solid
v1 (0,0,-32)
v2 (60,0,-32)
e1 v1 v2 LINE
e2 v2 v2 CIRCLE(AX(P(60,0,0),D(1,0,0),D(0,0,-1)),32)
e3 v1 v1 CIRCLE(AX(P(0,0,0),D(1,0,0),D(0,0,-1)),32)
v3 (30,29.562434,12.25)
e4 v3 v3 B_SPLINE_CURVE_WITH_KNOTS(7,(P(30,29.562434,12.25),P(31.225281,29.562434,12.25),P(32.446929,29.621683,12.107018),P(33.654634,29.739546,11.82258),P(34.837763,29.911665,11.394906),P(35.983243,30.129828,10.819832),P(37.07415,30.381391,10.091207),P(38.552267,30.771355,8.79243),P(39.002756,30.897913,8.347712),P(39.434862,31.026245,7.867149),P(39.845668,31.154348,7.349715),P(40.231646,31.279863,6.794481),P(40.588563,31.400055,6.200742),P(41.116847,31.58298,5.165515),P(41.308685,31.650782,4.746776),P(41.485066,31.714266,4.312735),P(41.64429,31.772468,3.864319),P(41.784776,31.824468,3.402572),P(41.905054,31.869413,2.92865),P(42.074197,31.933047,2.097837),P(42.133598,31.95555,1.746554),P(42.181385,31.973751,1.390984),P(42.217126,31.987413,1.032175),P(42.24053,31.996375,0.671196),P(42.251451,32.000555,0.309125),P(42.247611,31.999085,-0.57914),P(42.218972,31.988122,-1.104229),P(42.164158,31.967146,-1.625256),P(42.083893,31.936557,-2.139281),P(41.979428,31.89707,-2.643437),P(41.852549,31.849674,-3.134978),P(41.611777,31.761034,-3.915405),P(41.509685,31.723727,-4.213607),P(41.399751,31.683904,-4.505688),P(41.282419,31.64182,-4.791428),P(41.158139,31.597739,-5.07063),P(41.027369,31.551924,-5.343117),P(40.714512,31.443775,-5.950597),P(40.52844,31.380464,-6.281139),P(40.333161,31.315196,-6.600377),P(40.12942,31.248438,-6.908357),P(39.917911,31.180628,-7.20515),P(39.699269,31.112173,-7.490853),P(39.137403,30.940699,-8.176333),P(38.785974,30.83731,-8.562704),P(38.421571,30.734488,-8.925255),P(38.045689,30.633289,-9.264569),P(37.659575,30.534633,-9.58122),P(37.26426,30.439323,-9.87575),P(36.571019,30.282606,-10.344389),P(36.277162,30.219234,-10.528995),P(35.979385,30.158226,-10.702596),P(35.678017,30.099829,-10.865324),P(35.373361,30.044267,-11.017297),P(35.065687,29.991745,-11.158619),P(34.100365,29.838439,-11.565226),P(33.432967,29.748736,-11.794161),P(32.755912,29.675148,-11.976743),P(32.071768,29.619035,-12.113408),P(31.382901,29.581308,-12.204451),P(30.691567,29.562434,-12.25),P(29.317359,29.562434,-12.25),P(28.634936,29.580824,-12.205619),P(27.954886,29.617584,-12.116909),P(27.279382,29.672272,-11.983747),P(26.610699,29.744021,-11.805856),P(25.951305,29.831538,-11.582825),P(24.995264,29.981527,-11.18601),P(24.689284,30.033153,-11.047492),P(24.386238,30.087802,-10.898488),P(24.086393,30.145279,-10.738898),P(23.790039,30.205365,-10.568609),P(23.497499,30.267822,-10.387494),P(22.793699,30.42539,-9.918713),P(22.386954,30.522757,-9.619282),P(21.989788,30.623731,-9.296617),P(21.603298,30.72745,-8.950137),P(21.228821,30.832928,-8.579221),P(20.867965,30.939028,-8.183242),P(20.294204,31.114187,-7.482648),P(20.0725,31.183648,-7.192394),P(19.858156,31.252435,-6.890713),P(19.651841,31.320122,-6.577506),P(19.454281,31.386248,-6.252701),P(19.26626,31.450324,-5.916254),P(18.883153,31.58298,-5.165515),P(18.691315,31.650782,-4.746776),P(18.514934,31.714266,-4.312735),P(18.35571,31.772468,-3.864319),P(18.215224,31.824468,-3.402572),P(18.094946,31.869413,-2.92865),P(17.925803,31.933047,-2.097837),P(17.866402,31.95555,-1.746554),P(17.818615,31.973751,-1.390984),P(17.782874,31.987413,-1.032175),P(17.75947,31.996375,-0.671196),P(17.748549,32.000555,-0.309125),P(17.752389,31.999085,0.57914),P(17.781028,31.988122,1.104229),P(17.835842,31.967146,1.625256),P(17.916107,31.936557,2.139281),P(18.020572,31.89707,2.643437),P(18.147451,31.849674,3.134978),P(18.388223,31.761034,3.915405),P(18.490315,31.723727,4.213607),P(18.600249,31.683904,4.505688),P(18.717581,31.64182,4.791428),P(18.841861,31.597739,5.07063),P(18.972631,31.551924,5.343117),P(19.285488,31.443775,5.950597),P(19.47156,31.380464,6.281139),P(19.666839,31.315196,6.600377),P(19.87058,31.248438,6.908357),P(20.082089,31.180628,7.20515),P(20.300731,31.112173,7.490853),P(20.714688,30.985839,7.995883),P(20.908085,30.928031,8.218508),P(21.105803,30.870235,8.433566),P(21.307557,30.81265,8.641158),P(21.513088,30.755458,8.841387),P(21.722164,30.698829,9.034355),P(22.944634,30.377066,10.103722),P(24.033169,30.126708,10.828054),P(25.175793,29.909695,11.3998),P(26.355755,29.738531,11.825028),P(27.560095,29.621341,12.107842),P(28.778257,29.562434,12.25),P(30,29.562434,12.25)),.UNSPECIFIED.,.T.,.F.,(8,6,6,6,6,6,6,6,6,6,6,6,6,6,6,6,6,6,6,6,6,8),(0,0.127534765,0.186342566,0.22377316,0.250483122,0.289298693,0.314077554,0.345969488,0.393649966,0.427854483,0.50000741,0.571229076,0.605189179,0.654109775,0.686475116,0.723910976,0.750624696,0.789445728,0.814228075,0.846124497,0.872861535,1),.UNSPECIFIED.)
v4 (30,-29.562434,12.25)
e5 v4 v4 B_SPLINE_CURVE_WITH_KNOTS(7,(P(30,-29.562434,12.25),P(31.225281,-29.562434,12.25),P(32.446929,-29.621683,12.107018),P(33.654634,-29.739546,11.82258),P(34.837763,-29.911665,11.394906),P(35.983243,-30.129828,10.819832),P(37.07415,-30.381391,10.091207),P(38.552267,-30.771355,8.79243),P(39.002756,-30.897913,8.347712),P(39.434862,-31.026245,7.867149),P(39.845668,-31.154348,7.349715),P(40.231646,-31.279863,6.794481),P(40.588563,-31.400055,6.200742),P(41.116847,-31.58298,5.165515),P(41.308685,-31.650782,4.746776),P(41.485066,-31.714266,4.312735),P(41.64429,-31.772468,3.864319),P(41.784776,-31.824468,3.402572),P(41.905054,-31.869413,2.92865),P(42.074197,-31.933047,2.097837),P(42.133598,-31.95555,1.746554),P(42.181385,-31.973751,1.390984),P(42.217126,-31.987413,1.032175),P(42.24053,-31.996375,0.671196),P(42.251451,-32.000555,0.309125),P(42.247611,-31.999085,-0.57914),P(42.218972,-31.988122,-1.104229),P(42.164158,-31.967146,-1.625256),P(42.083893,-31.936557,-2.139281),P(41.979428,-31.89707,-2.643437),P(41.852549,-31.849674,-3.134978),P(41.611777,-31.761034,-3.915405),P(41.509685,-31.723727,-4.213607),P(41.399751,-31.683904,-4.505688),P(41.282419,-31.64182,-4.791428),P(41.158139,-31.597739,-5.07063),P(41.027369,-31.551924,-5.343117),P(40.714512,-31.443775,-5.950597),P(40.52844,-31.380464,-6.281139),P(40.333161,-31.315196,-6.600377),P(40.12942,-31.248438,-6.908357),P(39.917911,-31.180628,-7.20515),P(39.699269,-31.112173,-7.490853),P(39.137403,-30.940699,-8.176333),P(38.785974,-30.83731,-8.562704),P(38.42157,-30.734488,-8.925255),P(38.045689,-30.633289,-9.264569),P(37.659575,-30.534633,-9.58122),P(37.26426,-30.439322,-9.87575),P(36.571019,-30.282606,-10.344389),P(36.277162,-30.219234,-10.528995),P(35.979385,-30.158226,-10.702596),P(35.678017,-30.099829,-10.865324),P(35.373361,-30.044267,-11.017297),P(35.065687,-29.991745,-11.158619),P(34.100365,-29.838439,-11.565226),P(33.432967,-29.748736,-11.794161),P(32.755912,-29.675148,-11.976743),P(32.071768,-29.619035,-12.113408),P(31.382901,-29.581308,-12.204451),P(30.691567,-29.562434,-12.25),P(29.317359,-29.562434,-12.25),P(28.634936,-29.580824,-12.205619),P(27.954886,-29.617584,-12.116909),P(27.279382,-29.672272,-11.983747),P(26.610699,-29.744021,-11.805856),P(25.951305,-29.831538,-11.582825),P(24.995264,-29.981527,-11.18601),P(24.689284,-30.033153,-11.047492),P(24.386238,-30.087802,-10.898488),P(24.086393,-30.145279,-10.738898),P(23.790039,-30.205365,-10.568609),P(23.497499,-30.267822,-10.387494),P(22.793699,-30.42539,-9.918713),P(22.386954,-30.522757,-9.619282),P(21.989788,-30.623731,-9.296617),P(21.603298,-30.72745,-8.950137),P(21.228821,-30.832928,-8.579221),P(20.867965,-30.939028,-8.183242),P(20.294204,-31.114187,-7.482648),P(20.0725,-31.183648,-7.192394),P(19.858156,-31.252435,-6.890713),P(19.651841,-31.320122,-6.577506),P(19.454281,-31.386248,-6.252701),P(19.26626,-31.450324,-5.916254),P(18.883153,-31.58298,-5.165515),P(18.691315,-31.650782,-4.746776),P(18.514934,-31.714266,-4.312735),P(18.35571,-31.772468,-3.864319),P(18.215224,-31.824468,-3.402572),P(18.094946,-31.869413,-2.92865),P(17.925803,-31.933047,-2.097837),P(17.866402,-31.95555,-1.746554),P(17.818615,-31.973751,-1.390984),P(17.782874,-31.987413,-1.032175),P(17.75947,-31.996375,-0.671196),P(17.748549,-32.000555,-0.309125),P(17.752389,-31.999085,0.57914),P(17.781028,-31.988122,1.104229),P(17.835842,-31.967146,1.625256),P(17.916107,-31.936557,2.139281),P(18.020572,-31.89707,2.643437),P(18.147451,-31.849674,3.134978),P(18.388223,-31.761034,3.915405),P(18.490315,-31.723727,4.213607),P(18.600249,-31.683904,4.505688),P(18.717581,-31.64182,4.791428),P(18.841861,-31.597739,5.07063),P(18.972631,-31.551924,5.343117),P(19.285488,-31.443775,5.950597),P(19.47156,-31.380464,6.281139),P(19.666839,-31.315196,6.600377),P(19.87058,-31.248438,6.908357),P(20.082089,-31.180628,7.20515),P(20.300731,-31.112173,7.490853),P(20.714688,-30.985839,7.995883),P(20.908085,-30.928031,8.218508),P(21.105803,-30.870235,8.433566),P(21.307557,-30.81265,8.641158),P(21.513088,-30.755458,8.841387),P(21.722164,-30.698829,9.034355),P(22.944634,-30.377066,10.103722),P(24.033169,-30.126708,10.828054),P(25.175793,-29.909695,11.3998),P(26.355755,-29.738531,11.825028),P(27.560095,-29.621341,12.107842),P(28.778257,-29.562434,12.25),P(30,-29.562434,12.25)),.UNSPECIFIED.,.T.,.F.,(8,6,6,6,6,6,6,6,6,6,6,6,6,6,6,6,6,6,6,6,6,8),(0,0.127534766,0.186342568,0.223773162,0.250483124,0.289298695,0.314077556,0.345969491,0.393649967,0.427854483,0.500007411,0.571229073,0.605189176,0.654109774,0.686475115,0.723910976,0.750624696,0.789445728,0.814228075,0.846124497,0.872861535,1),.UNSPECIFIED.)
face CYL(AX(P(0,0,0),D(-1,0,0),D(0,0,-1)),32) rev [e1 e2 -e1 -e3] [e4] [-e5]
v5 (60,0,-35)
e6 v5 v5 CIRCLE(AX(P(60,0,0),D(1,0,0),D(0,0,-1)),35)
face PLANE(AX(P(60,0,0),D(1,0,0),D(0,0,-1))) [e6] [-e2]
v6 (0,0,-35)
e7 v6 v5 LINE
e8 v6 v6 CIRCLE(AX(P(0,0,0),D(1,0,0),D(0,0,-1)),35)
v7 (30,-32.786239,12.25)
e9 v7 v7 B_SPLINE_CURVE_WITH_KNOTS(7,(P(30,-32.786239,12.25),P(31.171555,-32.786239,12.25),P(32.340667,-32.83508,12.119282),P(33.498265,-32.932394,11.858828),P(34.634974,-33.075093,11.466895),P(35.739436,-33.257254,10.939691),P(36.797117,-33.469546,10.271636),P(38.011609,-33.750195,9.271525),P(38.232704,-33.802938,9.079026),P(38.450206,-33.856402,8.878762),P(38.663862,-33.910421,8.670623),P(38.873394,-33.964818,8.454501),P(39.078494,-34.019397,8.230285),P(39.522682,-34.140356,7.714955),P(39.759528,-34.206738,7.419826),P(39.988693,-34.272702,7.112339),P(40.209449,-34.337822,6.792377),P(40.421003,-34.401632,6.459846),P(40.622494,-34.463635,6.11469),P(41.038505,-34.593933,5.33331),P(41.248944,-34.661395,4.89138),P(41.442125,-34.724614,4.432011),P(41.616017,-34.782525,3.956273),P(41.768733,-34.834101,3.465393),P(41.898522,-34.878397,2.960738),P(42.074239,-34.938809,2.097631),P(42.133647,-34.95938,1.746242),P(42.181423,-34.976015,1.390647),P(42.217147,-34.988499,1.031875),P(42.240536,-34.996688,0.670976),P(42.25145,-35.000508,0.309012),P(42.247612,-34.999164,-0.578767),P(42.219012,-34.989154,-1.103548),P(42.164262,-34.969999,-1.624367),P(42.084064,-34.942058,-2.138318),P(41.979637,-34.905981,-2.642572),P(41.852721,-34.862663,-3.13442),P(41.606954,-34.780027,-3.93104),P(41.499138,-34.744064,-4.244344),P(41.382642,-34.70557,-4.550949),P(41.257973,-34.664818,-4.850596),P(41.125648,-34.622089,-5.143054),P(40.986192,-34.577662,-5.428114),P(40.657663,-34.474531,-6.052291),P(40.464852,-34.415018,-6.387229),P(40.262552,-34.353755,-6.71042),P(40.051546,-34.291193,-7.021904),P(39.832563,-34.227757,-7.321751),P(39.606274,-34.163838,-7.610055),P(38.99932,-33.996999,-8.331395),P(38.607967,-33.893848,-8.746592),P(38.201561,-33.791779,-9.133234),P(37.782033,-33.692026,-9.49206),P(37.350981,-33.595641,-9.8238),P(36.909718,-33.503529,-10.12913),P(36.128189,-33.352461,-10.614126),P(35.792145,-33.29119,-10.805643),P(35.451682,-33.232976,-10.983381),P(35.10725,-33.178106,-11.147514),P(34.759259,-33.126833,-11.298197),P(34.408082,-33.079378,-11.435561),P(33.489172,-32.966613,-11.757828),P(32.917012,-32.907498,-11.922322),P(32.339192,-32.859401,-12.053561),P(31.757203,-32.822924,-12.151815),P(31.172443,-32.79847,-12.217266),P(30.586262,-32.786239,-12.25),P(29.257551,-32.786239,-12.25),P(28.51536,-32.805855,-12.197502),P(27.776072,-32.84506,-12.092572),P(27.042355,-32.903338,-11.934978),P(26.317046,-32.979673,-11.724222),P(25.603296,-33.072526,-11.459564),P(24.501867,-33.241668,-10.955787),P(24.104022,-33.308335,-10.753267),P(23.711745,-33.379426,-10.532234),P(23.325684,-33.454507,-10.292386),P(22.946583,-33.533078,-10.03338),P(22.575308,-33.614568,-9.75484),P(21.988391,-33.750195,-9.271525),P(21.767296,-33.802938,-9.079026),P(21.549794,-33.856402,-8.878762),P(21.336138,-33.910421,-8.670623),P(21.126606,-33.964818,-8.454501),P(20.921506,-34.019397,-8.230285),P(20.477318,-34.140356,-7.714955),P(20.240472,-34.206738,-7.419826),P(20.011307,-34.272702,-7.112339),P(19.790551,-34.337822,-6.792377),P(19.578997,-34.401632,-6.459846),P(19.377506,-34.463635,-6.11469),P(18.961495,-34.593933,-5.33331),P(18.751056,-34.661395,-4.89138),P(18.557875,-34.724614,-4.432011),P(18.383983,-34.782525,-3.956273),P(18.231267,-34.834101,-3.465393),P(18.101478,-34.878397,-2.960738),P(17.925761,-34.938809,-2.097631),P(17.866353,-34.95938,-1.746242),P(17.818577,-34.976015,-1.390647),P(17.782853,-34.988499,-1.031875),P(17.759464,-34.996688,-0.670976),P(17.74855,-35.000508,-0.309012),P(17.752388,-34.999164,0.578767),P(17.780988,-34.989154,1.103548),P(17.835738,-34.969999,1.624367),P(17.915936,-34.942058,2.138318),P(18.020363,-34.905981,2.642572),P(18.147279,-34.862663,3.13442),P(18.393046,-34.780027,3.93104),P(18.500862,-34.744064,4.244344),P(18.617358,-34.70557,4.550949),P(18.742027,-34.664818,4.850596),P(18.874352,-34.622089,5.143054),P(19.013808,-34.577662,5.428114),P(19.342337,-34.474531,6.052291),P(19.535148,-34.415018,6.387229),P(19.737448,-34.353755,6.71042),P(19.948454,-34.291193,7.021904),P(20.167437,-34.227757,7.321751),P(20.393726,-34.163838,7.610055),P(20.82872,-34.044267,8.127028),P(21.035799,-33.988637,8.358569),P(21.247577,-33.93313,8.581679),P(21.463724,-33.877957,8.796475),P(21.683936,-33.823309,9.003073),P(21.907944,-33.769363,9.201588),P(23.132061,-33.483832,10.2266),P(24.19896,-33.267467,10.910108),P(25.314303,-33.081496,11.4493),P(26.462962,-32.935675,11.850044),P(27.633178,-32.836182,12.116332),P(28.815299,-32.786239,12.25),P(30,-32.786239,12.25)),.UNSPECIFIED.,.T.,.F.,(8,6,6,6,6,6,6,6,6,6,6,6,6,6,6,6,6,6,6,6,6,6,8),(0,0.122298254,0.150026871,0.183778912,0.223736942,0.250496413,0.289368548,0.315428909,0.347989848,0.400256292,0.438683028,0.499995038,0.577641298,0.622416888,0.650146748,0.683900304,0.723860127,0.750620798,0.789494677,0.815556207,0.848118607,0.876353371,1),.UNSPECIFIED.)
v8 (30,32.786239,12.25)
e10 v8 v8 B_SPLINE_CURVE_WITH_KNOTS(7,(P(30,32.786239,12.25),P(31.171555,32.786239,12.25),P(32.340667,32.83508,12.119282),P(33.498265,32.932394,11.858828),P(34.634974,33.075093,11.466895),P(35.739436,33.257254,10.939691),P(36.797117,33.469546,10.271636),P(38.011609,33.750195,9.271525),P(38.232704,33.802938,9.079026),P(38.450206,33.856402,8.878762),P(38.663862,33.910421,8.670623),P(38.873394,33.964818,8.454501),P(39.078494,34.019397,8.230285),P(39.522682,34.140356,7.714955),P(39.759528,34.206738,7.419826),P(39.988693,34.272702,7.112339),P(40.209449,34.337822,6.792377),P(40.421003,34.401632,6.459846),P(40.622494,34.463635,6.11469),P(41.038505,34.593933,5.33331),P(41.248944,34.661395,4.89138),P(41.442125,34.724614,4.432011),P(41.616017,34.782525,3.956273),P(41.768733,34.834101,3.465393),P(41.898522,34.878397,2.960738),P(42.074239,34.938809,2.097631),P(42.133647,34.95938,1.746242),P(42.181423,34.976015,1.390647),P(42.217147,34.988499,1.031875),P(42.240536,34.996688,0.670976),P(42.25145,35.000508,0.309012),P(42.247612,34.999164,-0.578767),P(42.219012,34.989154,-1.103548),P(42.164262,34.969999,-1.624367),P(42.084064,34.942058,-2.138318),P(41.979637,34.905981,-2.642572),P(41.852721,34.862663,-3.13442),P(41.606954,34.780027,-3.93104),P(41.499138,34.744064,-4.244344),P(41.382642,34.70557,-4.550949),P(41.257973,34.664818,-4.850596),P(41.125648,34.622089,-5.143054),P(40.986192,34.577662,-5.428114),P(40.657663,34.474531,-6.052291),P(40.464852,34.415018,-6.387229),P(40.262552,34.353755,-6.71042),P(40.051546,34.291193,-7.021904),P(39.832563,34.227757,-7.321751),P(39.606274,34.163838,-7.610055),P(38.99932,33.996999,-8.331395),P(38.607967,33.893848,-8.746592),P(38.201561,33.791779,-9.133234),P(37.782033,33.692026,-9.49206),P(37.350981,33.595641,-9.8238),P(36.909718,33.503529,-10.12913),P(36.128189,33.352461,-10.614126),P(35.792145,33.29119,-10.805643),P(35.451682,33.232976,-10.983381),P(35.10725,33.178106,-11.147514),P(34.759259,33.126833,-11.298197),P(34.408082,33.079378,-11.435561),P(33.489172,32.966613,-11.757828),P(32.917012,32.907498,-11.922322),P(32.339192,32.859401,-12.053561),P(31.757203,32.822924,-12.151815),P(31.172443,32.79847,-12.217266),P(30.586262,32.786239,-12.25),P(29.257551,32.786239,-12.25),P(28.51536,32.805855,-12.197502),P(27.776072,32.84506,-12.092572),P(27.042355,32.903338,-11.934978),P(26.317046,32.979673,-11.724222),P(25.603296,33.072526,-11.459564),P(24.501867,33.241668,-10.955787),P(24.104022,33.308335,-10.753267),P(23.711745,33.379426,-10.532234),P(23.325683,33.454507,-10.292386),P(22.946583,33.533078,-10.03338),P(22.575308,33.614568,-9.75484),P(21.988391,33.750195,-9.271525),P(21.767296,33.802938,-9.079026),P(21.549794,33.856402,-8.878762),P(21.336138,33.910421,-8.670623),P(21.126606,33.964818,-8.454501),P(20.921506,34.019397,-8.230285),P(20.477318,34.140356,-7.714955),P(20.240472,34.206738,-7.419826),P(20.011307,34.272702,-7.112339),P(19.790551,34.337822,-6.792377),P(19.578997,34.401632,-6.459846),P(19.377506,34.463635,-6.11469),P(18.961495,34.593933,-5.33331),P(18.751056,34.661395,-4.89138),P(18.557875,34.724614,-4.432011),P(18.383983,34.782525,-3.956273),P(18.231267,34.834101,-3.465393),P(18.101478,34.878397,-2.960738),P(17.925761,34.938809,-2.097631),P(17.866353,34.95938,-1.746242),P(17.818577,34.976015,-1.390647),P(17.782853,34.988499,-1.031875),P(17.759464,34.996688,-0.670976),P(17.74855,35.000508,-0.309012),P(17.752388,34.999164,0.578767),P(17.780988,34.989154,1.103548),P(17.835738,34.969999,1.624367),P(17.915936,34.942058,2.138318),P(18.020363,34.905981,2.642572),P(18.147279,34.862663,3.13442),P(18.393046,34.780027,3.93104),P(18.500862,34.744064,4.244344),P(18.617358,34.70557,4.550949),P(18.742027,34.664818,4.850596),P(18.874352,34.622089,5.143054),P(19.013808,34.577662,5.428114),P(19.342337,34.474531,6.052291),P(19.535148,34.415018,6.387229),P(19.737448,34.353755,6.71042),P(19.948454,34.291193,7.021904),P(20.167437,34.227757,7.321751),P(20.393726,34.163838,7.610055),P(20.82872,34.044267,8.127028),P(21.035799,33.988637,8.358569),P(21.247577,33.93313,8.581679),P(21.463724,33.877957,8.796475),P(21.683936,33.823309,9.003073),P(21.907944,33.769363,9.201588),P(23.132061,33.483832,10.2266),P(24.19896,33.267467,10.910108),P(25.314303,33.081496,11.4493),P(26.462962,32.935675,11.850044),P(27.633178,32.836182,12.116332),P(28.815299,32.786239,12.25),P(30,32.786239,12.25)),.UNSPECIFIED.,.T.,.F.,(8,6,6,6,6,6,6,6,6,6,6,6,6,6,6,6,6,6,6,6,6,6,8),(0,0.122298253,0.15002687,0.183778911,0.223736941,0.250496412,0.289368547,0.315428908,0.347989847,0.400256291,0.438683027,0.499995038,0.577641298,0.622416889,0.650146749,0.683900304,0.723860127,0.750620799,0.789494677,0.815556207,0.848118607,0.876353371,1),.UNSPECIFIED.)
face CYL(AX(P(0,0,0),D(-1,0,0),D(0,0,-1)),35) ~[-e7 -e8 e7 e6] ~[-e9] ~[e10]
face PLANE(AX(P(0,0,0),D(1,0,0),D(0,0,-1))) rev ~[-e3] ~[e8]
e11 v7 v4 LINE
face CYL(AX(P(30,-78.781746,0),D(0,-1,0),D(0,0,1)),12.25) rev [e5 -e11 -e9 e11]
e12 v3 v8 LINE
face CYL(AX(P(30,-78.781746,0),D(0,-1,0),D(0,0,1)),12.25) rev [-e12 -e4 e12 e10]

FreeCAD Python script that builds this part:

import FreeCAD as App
import Part
import Sketcher
from FreeCAD import Vector
Q = App.Units.Quantity

doc = App.newDocument("Part")
body = doc.addObject("PartDesign::Body", "Body")

sketch1 = body.newObject("Sketcher::SketchObject", "Sketch")
sketch1.AttachmentSupport = (doc.getObject("YZ_Plane"), [""])
sketch1.MapMode = "FlatFace"
sketch1.addGeometry(Part.Circle(Vector(0, 0, 0), Vector(0, 0, 1), 35), False)
sketch1.addGeometry(Part.Circle(Vector(0, 0, 0), Vector(0, 0, 1), 32), False)
sketch1.addConstraint(Sketcher.Constraint("Coincident", 0, 3, -1, 1))
sketch1.addConstraint(Sketcher.Constraint("Coincident", 1, 3, -1, 1))
sketch1.addConstraint(Sketcher.Constraint("Diameter", 0, Q("70 mm")))
sketch1.addConstraint(Sketcher.Constraint("Diameter", 1, Q("64 mm")))
pad1 = body.newObject("PartDesign::Pad", "Pad")
pad1.Profile = sketch1
pad1.Length = 60

sketch2 = body.newObject("Sketcher::SketchObject", "Sketch001")
sketch2.AttachmentSupport = (doc.getObject("XZ_Plane"), [""])
sketch2.MapMode = "FlatFace"
sketch2.addGeometry(Part.Circle(Vector(30, 0, 0), Vector(0, 0, 1), 12.25), False)
sketch2.addConstraint(Sketcher.Constraint("PointOnObject", 0, 3, -1))
sketch2.addConstraint(Sketcher.Constraint("Diameter", 0, Q("24.5 mm")))
sketch2.addConstraint(Sketcher.Constraint("DistanceX", -1, 1, 0, 3, Q("30 mm")))
pocket1 = body.newObject("PartDesign::Pocket", "Pocket")
pocket1.Profile = sketch2
pocket1.Type = "ThroughAll"
pocket1.Midplane = True

doc.recompute()
